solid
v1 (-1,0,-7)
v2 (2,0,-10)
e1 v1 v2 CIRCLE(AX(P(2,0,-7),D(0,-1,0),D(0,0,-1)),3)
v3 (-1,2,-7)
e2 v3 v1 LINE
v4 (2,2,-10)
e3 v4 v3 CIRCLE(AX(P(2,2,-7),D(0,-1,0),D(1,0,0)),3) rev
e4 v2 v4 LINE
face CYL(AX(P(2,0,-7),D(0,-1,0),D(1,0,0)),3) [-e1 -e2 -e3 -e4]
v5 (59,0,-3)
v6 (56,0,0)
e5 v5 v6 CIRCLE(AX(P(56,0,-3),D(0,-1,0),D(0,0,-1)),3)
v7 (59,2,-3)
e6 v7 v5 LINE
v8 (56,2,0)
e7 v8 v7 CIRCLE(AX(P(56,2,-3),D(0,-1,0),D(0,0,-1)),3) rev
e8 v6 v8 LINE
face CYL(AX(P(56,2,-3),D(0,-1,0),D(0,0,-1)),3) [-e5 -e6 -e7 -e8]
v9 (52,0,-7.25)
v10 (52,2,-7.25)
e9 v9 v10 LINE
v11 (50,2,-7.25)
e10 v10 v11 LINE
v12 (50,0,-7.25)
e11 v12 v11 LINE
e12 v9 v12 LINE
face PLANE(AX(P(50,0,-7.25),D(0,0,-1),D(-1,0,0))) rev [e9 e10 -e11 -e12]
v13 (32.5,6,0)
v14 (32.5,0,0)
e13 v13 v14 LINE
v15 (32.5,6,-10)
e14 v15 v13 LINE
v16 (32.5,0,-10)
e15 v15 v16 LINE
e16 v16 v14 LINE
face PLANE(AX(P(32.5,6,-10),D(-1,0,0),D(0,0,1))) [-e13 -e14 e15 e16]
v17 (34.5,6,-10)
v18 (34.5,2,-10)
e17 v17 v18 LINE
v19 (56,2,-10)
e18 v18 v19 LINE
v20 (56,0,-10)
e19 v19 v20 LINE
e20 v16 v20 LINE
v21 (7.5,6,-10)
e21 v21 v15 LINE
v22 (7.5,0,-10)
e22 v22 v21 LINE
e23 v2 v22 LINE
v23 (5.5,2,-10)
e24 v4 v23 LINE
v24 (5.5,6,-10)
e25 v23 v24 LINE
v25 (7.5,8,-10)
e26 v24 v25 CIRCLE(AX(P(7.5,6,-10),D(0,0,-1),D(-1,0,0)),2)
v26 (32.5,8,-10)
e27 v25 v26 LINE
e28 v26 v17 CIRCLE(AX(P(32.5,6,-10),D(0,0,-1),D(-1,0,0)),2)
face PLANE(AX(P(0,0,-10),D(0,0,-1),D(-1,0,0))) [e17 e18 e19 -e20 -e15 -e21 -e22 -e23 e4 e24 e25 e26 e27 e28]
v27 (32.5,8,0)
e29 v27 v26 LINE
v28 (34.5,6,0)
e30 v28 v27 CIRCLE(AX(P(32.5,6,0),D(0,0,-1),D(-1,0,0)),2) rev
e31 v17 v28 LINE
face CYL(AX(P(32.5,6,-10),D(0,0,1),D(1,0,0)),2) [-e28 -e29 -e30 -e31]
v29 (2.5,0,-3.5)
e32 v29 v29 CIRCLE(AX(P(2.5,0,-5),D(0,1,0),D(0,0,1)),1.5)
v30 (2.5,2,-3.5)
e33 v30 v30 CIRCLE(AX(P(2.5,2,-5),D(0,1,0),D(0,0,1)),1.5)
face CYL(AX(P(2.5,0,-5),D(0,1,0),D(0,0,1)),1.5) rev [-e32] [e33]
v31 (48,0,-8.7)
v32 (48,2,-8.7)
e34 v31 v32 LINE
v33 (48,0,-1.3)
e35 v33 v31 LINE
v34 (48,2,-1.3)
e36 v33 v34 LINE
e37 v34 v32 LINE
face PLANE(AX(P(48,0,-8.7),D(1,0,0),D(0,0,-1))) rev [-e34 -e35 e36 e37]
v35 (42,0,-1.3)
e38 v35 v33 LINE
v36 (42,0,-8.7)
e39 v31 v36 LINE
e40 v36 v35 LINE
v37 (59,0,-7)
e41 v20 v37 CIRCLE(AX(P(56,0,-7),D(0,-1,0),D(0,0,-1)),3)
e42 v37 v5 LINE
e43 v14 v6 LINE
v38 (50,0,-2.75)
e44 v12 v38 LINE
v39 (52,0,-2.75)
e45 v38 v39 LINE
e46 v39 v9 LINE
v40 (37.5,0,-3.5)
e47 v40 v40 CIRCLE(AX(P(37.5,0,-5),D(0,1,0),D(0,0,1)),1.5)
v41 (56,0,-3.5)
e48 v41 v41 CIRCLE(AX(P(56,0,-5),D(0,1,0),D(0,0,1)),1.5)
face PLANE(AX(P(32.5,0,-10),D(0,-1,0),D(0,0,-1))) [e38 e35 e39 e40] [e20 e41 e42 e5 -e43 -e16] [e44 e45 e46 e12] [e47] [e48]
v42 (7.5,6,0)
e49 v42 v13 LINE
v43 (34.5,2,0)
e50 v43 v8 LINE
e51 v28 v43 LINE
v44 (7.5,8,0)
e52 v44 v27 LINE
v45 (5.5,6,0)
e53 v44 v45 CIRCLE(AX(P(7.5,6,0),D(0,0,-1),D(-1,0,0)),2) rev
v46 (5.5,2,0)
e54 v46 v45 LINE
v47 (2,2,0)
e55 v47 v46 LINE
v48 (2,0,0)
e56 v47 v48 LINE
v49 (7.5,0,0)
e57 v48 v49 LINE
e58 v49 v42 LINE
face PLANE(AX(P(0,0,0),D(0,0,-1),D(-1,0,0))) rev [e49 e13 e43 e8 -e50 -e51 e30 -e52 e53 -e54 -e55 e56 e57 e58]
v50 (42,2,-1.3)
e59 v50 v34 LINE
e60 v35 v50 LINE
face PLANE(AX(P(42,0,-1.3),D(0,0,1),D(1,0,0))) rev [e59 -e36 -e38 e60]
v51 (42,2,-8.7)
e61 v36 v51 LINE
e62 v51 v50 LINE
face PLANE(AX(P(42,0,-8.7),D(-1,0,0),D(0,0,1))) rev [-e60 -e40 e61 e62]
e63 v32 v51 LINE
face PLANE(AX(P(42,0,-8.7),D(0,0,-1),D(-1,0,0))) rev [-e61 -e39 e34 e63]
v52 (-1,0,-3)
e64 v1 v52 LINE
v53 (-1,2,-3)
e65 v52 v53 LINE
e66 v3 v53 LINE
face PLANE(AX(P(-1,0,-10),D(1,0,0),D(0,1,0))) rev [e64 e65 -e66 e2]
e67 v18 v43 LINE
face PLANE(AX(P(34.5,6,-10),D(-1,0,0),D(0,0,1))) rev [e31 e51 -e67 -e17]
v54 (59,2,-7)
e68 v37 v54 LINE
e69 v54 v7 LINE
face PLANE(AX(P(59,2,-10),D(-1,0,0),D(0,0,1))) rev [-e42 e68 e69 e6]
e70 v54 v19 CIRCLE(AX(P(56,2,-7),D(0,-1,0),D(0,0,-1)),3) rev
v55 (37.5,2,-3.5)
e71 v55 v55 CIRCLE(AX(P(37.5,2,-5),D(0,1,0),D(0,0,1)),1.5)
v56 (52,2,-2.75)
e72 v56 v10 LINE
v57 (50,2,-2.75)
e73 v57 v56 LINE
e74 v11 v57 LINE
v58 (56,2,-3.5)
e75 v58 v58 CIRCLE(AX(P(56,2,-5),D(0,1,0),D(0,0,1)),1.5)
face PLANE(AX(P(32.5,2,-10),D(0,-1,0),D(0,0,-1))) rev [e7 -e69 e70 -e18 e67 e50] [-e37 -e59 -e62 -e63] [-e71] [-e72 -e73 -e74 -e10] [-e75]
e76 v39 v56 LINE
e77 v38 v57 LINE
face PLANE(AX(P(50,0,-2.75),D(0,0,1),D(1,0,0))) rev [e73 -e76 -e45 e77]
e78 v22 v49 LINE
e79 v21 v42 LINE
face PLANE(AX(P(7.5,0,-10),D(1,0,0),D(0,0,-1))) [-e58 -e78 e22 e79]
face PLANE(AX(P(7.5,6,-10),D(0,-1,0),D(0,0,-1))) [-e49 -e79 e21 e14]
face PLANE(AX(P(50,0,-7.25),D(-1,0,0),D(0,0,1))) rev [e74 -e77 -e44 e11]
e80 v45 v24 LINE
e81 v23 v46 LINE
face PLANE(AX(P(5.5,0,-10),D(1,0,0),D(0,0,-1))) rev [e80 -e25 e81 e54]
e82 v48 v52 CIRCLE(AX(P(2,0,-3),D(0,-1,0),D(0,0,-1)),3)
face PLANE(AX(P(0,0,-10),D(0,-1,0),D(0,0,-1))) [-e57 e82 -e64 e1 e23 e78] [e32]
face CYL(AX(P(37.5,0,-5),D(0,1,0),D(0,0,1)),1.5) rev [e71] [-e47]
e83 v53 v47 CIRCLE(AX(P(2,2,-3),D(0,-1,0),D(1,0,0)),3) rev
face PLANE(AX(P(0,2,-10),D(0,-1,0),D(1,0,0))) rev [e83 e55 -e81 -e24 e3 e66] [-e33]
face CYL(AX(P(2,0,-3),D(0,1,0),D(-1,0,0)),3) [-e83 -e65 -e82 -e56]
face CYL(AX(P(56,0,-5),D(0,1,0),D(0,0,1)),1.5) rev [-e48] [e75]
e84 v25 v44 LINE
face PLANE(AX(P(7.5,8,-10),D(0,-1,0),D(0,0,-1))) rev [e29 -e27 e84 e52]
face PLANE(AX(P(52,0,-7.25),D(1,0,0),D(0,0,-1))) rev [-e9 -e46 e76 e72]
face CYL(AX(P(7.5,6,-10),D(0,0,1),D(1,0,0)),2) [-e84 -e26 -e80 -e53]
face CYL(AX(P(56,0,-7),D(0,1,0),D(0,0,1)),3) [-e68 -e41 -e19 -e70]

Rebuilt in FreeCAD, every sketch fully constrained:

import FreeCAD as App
import Part
import Sketcher
Q = App.Units.Quantity


def edges_at(feature, points):
    """Names of the edges that pass closest to the given points."""
    edges = feature.Shape.Edges
    near = lambda p: min(range(len(edges)), key=lambda i: edges[i].distToShape(Part.Vertex(*p))[0])
    return sorted({f"Edge{near(p) + 1}" for p in points})


def add_polygon(sketch, points):
    """Adds a closed chain of lines whose ends are joined by coincident constraints."""
    first, n = sketch.GeometryCount, len(points)
    for a, b in zip(points, points[1:] + points[:1]):
        sketch.addGeometry(Part.LineSegment(App.Vector(*a, 0), App.Vector(*b, 0)), False)
    for i in range(n):
        sketch.addConstraint(Sketcher.Constraint("Coincident", first + i, 2, first + (i + 1) % n, 1))

doc = App.newDocument("Part")
body = doc.addObject("PartDesign::Body", "Body")

sketch1 = body.newObject("Sketcher::SketchObject", "Sketch")
sketch1.AttachmentSupport = (doc.getObject("XY_Plane"), [""])
sketch1.MapMode = "FlatFace"
add_polygon(sketch1, [(-1, 0), (7.5, 0), (7.5, 6), (32.5, 6), (32.5, 0), (59, 0), (59, 2), (34.5, 2), (34.5, 8), (5.5, 8), (5.5, 2), (-1, 2)])
sketch1.addConstraint([
    Sketcher.Constraint("Horizontal", 0),
    Sketcher.Constraint("Vertical", 1),
    Sketcher.Constraint("Horizontal", 2),
    Sketcher.Constraint("Vertical", 3),
    Sketcher.Constraint("Horizontal", 4),
    Sketcher.Constraint("Vertical", 5),
    Sketcher.Constraint("Horizontal", 6),
    Sketcher.Constraint("Vertical", 7),
    Sketcher.Constraint("Horizontal", 8),
    Sketcher.Constraint("Vertical", 9),
    Sketcher.Constraint("Horizontal", 10),
    Sketcher.Constraint("Vertical", 11),
    Sketcher.Constraint("PointOnObject", 0, 2, -1),
    Sketcher.Constraint("PointOnObject", 3, 2, -1),
    Sketcher.Constraint("Horizontal", 6, 2, 9, 2),
    Sketcher.Constraint("Equal", 3, 7),
    Sketcher.Constraint("DistanceX", 2, 1, 2, 2, Q("25 mm")),
    Sketcher.Constraint("DistanceX", 8, 2, 8, 1, Q("29 mm")),
    Sketcher.Constraint("DistanceY", 1, 1, 1, 2, Q("6 mm")),
    Sketcher.Constraint("DistanceY", 5, 1, 5, 2, Q("2 mm")),
    Sketcher.Constraint("DistanceX", 0, 1, 0, 2, Q("8.5 mm")),
    Sketcher.Constraint("DistanceX", 4, 1, 4, 2, Q("26.5 mm")),
    Sketcher.Constraint("DistanceX", 6, 2, 6, 1, Q("24.5 mm")),
    Sketcher.Constraint("DistanceX", -1, 1, 4, 2, Q("59 mm")),
])
pad1 = body.newObject("PartDesign::Pad", "Pad")
pad1.Profile = sketch1
pad1.Length = 10
pad1.Reversed = True

sketch2 = body.newObject("Sketcher::SketchObject", "Sketch001")
sketch2.AttachmentSupport = (doc.getObject("XZ_Plane"), [""])
sketch2.MapMode = "FlatFace"
sketch2.AttachmentOffset = App.Placement(App.Vector(0, 0, -2), App.Rotation())
sketch2.addGeometry([
    Part.Circle(App.Vector(2.5, -5, 0), App.Vector(0, 0, 1), 1.5),
    Part.Circle(App.Vector(37.5, -5, 0), App.Vector(0, 0, 1), 1.5),
    Part.Circle(App.Vector(56, -5, 0), App.Vector(0, 0, 1), 1.5),
], False)
sketch2.addConstraint([
    Sketcher.Constraint("Equal", 0, 1),
    Sketcher.Constraint("Equal", 1, 2),
    Sketcher.Constraint("Horizontal", 0, 3, 1, 3),
    Sketcher.Constraint("Horizontal", 1, 3, 2, 3),
    Sketcher.Constraint("Diameter", 0, Q("3 mm")),
    Sketcher.Constraint("DistanceY", 0, 3, -1, 1, Q("5 mm")),
    Sketcher.Constraint("DistanceX", -1, 1, 2, 3, Q("56 mm")),
    Sketcher.Constraint("DistanceX", 0, 3, 1, 3, Q("35 mm")),
    Sketcher.Constraint("DistanceX", -1, 1, 0, 3, Q("2.5 mm")),
])
pocket1 = body.newObject("PartDesign::Pocket", "Pocket")
pocket1.Profile = sketch2
pocket1.Type = "ThroughAll"
pocket1.Reversed = True
doc.recompute()

fillet = body.newObject("PartDesign::Fillet", "Fillet")
fillet.Base = (pocket1, edges_at(pocket1, [
    (-1, 1, 0),
    (59, 1, 0),
    (-1, 1, -10),
    (59, 1, -10),
]))
fillet.Radius = 3
doc.recompute()

fillet2 = body.newObject("PartDesign::Fillet", "Fillet001")
fillet2.Base = (fillet, edges_at(fillet, [(5.5, 8, -5), (34.5, 8, -5)]))
fillet2.Radius = 2

sketch3 = body.newObject("Sketcher::SketchObject", "Sketch002")
sketch3.AttachmentSupport = (doc.getObject("XZ_Plane"), [""])
sketch3.MapMode = "FlatFace"
sketch3.AttachmentOffset = App.Placement(App.Vector(0, 0, -2), App.Rotation())
add_polygon(sketch3, [(42, -8.7), (42, -1.3), (48, -1.3), (48, -8.7)])
add_polygon(sketch3, [(50, -7.2), (50, -2.8), (52, -2.8), (52, -7.2)])
sketch3.addConstraint([
    Sketcher.Constraint("Vertical", 0),
    Sketcher.Constraint("Horizontal", 1),
    Sketcher.Constraint("Vertical", 2),
    Sketcher.Constraint("Horizontal", 3),
    Sketcher.Constraint("Vertical", 4),
    Sketcher.Constraint("Horizontal", 5),
    Sketcher.Constraint("Vertical", 6),
    Sketcher.Constraint("Horizontal", 7),
    Sketcher.Constraint("DistanceX", 1, 1, 1, 2, Q("6 mm")),
    Sketcher.Constraint("DistanceX", 5, 1, 5, 2, Q("2 mm")),
    Sketcher.Constraint("DistanceY", 0, 1, 0, 2, Q("7.4 mm")),
    Sketcher.Constraint("DistanceY", 4, 1, 4, 2, Q("4.5 mm")),
    Sketcher.Constraint("DistanceX", -1, 1, 0, 2, Q("42 mm")),
    Sketcher.Constraint("DistanceX", -1, 1, 4, 2, Q("50 mm")),
    Sketcher.Constraint("DistanceY", 0, 2, -1, 1, Q("1.3 mm")),
    Sketcher.Constraint("DistanceY", 4, 2, -1, 1, Q("2.75 mm")),
])
pocket2 = body.newObject("PartDesign::Pocket", "Pocket001")
pocket2.Profile = sketch3
pocket2.Type = "ThroughAll"
pocket2.Reversed = True

doc.recompute()
